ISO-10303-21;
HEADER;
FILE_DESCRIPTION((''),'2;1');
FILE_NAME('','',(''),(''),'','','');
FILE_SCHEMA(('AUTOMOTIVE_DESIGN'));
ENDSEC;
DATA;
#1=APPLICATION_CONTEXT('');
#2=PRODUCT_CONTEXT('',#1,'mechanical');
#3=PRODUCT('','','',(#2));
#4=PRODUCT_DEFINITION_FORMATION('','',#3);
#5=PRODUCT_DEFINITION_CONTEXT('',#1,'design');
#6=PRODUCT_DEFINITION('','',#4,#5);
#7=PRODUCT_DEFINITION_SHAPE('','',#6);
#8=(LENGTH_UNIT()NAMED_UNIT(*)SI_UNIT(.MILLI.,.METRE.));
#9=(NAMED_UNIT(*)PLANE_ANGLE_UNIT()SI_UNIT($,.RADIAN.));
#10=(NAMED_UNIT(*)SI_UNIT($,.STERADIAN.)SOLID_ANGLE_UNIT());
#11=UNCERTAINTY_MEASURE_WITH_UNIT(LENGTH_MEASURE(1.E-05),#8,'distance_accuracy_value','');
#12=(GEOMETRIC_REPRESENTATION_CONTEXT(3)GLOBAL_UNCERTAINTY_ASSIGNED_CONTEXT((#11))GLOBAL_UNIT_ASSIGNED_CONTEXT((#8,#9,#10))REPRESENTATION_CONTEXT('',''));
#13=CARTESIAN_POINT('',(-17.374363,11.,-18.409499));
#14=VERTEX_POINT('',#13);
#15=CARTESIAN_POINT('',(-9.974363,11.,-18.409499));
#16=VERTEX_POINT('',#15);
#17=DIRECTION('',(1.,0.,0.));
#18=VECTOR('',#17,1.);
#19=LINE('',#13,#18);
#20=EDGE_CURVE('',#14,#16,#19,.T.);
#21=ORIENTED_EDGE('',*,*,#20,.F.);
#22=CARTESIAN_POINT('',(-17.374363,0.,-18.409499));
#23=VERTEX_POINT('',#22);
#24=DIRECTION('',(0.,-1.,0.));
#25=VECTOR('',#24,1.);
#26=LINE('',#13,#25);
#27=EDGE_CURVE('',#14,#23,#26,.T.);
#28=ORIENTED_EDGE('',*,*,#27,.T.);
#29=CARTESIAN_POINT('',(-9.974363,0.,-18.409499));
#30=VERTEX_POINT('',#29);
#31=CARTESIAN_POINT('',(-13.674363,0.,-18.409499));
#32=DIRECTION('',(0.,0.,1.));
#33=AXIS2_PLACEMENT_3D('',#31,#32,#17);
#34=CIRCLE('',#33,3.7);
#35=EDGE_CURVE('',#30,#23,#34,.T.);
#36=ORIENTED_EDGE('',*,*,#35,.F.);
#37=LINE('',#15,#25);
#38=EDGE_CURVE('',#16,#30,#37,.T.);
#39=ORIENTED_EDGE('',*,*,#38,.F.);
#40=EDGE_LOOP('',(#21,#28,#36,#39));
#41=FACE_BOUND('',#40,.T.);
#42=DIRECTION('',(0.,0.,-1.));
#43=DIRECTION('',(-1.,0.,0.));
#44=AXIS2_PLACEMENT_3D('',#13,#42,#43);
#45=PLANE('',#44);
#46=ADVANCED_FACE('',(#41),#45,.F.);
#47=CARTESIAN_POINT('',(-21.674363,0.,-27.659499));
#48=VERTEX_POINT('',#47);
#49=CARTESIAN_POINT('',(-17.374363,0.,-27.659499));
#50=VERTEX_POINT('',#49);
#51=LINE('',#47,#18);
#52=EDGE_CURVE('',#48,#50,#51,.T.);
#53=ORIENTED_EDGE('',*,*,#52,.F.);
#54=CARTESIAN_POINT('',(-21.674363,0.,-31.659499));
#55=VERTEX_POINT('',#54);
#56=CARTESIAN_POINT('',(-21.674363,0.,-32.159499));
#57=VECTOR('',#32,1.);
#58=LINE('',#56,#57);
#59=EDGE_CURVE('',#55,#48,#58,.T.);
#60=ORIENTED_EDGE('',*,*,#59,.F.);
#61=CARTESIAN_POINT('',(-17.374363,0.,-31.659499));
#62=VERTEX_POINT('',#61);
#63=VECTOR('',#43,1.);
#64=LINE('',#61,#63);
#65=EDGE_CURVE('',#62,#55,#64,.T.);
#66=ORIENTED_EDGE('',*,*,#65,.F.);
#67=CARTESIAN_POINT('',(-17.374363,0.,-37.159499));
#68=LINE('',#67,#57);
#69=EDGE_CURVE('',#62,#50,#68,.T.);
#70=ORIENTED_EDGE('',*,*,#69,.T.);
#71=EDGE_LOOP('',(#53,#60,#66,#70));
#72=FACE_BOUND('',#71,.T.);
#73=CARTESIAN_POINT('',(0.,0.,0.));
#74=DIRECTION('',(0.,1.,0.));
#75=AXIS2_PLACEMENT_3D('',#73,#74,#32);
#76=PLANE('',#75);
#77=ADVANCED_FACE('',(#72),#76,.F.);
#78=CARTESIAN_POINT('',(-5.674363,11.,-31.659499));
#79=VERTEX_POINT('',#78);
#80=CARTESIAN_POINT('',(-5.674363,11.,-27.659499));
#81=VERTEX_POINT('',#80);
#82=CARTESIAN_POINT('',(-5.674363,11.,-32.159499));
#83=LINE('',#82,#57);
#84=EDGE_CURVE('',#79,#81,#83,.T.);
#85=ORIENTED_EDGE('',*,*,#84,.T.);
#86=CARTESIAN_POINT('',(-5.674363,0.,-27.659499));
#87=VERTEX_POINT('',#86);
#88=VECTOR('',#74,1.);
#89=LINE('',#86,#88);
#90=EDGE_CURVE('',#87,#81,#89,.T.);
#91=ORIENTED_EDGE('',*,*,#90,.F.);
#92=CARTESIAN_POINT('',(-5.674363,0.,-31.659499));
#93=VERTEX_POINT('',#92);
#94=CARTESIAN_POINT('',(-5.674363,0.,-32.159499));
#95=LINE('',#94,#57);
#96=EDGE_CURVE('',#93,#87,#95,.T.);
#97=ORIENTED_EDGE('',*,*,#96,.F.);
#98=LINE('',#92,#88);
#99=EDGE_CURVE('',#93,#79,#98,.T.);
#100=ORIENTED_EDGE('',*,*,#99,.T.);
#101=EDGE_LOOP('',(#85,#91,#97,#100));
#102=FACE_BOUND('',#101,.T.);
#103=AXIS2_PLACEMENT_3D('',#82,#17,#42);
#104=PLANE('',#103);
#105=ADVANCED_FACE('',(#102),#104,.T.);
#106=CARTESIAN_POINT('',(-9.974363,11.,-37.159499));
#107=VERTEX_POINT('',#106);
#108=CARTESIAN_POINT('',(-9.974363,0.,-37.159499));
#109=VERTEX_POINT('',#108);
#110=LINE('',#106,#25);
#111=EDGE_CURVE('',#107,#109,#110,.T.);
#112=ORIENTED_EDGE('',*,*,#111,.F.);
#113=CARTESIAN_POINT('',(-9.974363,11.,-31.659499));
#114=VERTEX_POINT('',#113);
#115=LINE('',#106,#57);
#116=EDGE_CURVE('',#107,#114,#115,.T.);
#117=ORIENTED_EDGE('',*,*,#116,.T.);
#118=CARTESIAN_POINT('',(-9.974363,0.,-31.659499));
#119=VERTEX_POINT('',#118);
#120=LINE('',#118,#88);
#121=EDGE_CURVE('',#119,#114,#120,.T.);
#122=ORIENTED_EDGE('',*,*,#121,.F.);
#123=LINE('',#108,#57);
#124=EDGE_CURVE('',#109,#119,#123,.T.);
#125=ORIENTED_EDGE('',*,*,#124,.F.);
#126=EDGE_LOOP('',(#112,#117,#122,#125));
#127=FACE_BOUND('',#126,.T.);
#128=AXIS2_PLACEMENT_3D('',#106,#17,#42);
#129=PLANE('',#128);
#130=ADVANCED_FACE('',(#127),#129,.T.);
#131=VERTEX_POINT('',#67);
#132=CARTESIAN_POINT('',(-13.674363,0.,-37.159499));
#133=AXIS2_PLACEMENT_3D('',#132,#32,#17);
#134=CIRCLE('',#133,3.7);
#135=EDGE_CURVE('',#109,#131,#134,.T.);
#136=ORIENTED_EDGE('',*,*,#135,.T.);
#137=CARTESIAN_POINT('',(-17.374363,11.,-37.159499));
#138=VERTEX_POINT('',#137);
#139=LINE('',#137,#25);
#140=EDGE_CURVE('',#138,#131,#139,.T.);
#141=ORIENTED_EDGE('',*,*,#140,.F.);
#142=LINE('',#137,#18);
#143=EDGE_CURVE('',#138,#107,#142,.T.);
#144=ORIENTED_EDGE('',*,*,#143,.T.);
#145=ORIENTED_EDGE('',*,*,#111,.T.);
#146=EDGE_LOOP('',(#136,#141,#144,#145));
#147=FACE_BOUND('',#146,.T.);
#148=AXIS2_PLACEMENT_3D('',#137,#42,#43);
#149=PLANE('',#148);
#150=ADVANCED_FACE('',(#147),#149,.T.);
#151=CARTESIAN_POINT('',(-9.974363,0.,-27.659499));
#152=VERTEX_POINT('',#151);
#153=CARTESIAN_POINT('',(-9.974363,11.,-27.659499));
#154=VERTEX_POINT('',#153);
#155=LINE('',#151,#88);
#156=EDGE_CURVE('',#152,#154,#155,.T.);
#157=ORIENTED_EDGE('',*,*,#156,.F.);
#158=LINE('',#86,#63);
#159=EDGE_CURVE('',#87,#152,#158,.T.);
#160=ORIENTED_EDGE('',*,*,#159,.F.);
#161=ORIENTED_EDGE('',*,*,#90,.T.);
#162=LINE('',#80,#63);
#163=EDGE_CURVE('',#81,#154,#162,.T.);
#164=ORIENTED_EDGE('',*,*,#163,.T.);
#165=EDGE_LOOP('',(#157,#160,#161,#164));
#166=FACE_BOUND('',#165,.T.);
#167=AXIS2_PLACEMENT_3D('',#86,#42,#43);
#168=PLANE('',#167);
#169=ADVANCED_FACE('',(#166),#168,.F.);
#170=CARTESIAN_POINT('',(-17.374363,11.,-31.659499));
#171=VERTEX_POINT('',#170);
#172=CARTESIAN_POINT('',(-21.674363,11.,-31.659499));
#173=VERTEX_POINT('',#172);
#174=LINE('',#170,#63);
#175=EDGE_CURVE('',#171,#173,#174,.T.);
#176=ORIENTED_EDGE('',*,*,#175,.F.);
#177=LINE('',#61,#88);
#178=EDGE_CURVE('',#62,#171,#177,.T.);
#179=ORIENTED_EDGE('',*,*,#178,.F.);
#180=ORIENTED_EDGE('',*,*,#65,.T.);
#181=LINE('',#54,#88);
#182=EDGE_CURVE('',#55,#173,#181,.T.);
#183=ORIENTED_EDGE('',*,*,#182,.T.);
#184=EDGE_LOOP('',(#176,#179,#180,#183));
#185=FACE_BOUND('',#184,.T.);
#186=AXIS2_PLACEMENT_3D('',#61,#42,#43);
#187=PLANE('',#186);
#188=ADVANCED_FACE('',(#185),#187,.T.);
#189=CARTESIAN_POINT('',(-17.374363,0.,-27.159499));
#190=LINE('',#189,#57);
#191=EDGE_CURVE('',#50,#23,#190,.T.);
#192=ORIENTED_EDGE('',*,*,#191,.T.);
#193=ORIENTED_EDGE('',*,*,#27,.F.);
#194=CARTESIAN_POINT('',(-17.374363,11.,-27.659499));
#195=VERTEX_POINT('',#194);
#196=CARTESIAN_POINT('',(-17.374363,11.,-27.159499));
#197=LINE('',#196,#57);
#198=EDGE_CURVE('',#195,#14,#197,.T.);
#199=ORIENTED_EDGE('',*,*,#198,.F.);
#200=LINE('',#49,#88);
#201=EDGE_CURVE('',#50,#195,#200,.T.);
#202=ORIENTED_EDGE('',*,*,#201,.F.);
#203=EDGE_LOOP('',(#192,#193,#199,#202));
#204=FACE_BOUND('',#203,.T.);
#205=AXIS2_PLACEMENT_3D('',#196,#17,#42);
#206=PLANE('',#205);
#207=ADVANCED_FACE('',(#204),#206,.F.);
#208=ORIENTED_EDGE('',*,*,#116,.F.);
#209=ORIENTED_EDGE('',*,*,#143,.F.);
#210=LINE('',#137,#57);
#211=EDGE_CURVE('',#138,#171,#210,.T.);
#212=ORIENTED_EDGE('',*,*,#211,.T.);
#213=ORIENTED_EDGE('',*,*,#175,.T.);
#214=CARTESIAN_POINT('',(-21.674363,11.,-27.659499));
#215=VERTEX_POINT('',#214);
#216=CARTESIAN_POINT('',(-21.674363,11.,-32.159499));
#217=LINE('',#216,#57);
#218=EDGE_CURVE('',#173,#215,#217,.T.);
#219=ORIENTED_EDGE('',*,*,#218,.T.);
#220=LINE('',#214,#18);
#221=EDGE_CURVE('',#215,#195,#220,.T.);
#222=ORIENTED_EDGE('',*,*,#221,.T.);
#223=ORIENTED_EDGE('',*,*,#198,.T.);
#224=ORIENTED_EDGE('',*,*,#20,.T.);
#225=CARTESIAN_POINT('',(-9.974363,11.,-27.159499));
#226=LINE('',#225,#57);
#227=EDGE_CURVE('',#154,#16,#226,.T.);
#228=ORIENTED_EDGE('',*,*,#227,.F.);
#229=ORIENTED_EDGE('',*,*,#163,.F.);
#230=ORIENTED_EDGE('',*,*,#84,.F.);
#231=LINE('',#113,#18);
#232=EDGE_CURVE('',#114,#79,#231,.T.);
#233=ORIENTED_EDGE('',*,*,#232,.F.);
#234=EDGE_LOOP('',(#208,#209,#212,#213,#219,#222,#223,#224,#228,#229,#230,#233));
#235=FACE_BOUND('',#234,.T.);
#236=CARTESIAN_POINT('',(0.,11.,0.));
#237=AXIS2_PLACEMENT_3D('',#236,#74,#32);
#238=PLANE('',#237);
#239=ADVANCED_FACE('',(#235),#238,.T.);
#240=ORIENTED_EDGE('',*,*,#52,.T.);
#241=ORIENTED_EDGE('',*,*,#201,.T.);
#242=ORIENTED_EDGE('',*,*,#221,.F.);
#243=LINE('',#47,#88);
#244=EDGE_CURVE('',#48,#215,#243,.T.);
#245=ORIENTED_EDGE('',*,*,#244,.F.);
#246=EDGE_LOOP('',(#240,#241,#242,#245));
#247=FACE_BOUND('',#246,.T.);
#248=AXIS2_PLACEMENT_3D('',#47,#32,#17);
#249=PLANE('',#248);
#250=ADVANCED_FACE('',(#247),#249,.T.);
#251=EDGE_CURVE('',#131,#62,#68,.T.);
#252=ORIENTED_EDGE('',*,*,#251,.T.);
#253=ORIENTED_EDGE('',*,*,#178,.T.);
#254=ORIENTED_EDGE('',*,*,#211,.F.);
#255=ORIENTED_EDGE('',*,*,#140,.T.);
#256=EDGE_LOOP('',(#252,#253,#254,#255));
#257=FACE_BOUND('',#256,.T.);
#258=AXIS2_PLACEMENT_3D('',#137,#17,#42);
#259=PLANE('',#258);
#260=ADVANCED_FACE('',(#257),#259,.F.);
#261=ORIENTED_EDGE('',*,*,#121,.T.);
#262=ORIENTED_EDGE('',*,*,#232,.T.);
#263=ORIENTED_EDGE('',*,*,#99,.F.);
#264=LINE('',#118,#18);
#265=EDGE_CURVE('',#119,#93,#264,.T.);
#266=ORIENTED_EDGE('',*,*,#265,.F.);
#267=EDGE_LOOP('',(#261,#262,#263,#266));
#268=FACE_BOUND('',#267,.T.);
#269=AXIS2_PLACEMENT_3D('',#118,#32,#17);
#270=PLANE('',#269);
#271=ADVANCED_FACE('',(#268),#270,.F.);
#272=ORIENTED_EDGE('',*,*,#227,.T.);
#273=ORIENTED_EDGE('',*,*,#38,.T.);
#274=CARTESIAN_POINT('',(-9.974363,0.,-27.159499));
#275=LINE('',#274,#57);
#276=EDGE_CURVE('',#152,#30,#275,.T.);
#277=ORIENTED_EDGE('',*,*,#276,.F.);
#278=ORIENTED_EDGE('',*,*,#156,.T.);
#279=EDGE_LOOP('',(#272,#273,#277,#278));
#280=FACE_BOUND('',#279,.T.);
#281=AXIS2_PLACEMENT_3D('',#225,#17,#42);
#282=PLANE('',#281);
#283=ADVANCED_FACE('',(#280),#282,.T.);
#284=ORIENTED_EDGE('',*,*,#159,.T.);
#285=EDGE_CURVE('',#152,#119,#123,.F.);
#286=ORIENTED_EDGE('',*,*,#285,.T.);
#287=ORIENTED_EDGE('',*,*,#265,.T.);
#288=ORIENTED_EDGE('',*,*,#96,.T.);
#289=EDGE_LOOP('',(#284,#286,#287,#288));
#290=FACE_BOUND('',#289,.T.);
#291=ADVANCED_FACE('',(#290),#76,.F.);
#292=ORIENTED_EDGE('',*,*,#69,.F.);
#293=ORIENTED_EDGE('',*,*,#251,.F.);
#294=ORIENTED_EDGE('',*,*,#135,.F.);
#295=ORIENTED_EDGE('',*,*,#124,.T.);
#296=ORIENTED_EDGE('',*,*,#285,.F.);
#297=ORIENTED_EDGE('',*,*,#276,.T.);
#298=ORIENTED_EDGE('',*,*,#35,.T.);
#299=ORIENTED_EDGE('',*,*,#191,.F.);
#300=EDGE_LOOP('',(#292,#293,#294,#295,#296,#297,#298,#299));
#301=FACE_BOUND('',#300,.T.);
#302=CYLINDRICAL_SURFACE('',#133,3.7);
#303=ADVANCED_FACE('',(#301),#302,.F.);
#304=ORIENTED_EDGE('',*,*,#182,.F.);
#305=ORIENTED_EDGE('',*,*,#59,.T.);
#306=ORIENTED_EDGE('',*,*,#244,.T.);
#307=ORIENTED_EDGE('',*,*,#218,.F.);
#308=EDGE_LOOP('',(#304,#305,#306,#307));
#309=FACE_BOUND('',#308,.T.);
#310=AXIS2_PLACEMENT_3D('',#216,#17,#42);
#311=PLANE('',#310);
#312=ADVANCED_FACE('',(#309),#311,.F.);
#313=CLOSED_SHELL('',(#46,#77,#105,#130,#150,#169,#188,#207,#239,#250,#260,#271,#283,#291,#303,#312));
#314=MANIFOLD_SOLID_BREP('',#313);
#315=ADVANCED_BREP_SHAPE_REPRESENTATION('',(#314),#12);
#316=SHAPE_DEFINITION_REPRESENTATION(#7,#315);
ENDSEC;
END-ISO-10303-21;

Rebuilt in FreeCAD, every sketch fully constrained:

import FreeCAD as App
import Part
import Sketcher
from FreeCAD import Vector
Q = App.Units.Quantity


def add_polygon(sketch, points):
    """Adds a closed chain of lines whose ends are joined by coincident constraints."""
    first, n = sketch.GeometryCount, len(points)
    for a, b in zip(points, points[1:] + points[:1]):
        sketch.addGeometry(Part.LineSegment(App.Vector(*a, 0), App.Vector(*b, 0)), False)
    for i in range(n):
        sketch.addConstraint(Sketcher.Constraint("Coincident", first + i, 2, first + (i + 1) % n, 1))

doc = App.newDocument("Part")
params = doc.addObject("Spreadsheet::Sheet", "Params")
for row, (alias, value) in enumerate([
    ("sketch1_height", "5 mm"),
    ("sketch1_width", "7.4 mm"),
    ("sketch1_width2", "4.3 mm"),
    ("sketch1_height2", "8.75 mm"),
    ("pad1_length", "11 mm"),
    ("sketch2_diameter", "7.4 mm"),
    ("sketch3_width", "4.3 mm"),
    ("sketch3_height", "0.5 mm"),
], start=1):
    params.set(f"A{row}", alias)
    params.set(f"B{row}", "=" + value)
    params.setAlias(f"B{row}", alias)

body = doc.addObject("PartDesign::Body", "Body")

sketch1 = body.newObject("Sketcher::SketchObject", "Sketch")
sketch1.AttachmentSupport = (doc.getObject("XZ_Plane"), [""])
sketch1.MapMode = "FlatFace"
add_polygon(sketch1, [(-10, -37.2), (-17.4, -37.2), (-17.4, -32.2), (-21.7, -32.2), (-21.7, -27.2), (-17.4, -27.2), (-17.4, -18.4), (-10, -18.4), (-10, -27.2), (-5.7, -27.2), (-5.7, -32.2), (-10, -32.2)])
sketch1.addConstraint(Sketcher.Constraint("Horizontal", 0))
sketch1.addConstraint(Sketcher.Constraint("Vertical", 1))
sketch1.addConstraint(Sketcher.Constraint("Horizontal", 2))
sketch1.addConstraint(Sketcher.Constraint("Vertical", 3))
sketch1.addConstraint(Sketcher.Constraint("Horizontal", 4))
sketch1.addConstraint(Sketcher.Constraint("Vertical", 5))
sketch1.addConstraint(Sketcher.Constraint("Horizontal", 6))
sketch1.addConstraint(Sketcher.Constraint("Vertical", 7))
sketch1.addConstraint(Sketcher.Constraint("Horizontal", 8))
sketch1.addConstraint(Sketcher.Constraint("Vertical", 9))
sketch1.addConstraint(Sketcher.Constraint("Horizontal", 10))
sketch1.addConstraint(Sketcher.Constraint("Vertical", 11))
sketch1.addConstraint(Sketcher.Constraint("Horizontal", 4, 2, 7, 2))
sketch1.addConstraint(Sketcher.Constraint("Horizontal", 2, 2, 9, 2))
sketch1.addConstraint(Sketcher.Constraint("Vertical", 1, 2, 4, 2))
sketch1.addConstraint(Sketcher.Constraint("Vertical", 7, 2, 10, 2))
sketch1.addConstraint(Sketcher.Constraint("Equal", 4, 8))
sketch1.addConstraint(Sketcher.Constraint("Equal", 1, 3))
sketch1.addConstraint(Sketcher.Constraint("DistanceY", 1, 1, 1, 2, Q("5 mm")))
sketch1.addConstraint(Sketcher.Constraint("DistanceX", 0, 2, 0, 1, Q("7.4 mm")))
sketch1.addConstraint(Sketcher.Constraint("DistanceX", 2, 2, 2, 1, Q("4.3 mm")))
sketch1.addConstraint(Sketcher.Constraint("DistanceY", 5, 1, 5, 2, Q("8.75 mm")))
sketch1.addConstraint(Sketcher.Constraint("DistanceY", 0, 2, -1, 1, Q("37.159499 mm")))
sketch1.addConstraint(Sketcher.Constraint("DistanceX", 0, 2, -1, 1, Q("17.374363 mm")))
sketch1.setExpression("Constraints[30]", "Params.sketch1_height")
sketch1.setExpression("Constraints[31]", "Params.sketch1_width")
sketch1.setExpression("Constraints[32]", "Params.sketch1_width2")
sketch1.setExpression("Constraints[33]", "Params.sketch1_height2")
pad1 = body.newObject("PartDesign::Pad", "Pad")
pad1.Profile = sketch1
pad1.setExpression("Length", "Params.pad1_length")
pad1.Reversed = True

sketch2 = body.newObject("Sketcher::SketchObject", "Sketch001")
sketch2.AttachmentSupport = (doc.getObject("XY_Plane"), [""])
sketch2.MapMode = "FlatFace"
sketch2.AttachmentOffset = App.Placement(Vector(0, 0, -18.409499), App.Rotation())
sketch2.addGeometry(Part.Circle(Vector(-13.7, 0, 0), Vector(0, 0, 1), 3.7), False)
sketch2.addConstraint(Sketcher.Constraint("PointOnObject", 0, 3, -1))
sketch2.addConstraint(Sketcher.Constraint("Diameter", 0, Q("7.4 mm")))
sketch2.addConstraint(Sketcher.Constraint("DistanceX", 0, 3, -1, 1, Q("13.674363 mm")))
sketch2.setExpression("Constraints[1]", "Params.sketch2_diameter")
pocket1 = body.newObject("PartDesign::Pocket", "Pocket")
pocket1.Profile = sketch2
pocket1.Type = "ThroughAll"

sketch3 = body.newObject("Sketcher::SketchObject", "Sketch002")
sketch3.AttachmentSupport = (doc.getObject("XZ_Plane"), [""])
sketch3.MapMode = "FlatFace"
sketch3.AttachmentOffset = App.Placement(Vector(0, 0, -11), App.Rotation())
add_polygon(sketch3, [(-9.97, -32.16), (-9.97, -31.66), (-5.67, -31.66), (-5.67, -32.16)])
add_polygon(sketch3, [(-21.67, -32.16), (-21.67, -31.66), (-17.37, -31.66), (-17.37, -32.16)])
add_polygon(sketch3, [(-21.67, -27.66), (-21.67, -27.16), (-17.37, -27.16), (-17.37, -27.66)])
add_polygon(sketch3, [(-9.97, -27.66), (-9.97, -27.16), (-5.67, -27.16), (-5.67, -27.66)])
sketch3.addConstraint(Sketcher.Constraint("Vertical", 0))
sketch3.addConstraint(Sketcher.Constraint("Horizontal", 1))
sketch3.addConstraint(Sketcher.Constraint("Vertical", 2))
sketch3.addConstraint(Sketcher.Constraint("Horizontal", 3))
sketch3.addConstraint(Sketcher.Constraint("Vertical", 4))
sketch3.addConstraint(Sketcher.Constraint("Horizontal", 5))
sketch3.addConstraint(Sketcher.Constraint("Vertical", 6))
sketch3.addConstraint(Sketcher.Constraint("Horizontal", 7))
sketch3.addConstraint(Sketcher.Constraint("Vertical", 8))
sketch3.addConstraint(Sketcher.Constraint("Horizontal", 9))
sketch3.addConstraint(Sketcher.Constraint("Vertical", 10))
sketch3.addConstraint(Sketcher.Constraint("Horizontal", 11))
sketch3.addConstraint(Sketcher.Constraint("Vertical", 12))
sketch3.addConstraint(Sketcher.Constraint("Horizontal", 13))
sketch3.addConstraint(Sketcher.Constraint("Vertical", 14))
sketch3.addConstraint(Sketcher.Constraint("Horizontal", 15))
sketch3.addConstraint(Sketcher.Constraint("Horizontal", 1, 2, 4, 2))
sketch3.addConstraint(Sketcher.Constraint("Horizontal", 3, 2, 6, 2))
sketch3.addConstraint(Sketcher.Constraint("Horizontal", 9, 2, 12, 2))
sketch3.addConstraint(Sketcher.Constraint("Horizontal", 11, 2, 14, 2))
sketch3.addConstraint(Sketcher.Constraint("Vertical", 7, 2, 8, 2))
sketch3.addConstraint(Sketcher.Constraint("Vertical", 6, 2, 9, 2))
sketch3.addConstraint(Sketcher.Constraint("Vertical", 3, 2, 12, 2))
sketch3.addConstraint(Sketcher.Constraint("Vertical", 2, 2, 13, 2))
sketch3.addConstraint(Sketcher.Constraint("Equal", 3, 5))
sketch3.addConstraint(Sketcher.Constraint("Equal", 6, 8))
sketch3.addConstraint(Sketcher.Constraint("DistanceX", 1, 1, 1, 2, Q("4.3 mm")))
sketch3.addConstraint(Sketcher.Constraint("DistanceY", 0, 1, 0, 2, Q("0.5 mm")))
sketch3.addConstraint(Sketcher.Constraint("DistanceX", 4, 2, 1, 2, Q("16 mm")))
sketch3.addConstraint(Sketcher.Constraint("DistanceY", 7, 2, 8, 2, Q("5 mm")))
sketch3.addConstraint(Sketcher.Constraint("DistanceY", 0, 2, -1, 1, Q("31.659499 mm")))
sketch3.addConstraint(Sketcher.Constraint("DistanceX", 0, 2, -1, 1, Q("9.974363 mm")))
sketch3.setExpression("Constraints[42]", "Params.sketch3_width")
sketch3.setExpression("Constraints[43]", "Params.sketch3_height")
pocket2 = body.newObject("PartDesign::Pocket", "Pocket001")
pocket2.Profile = sketch3
pocket2.Type = "ThroughAll"
pocket2.Reversed = True

doc.recompute()
